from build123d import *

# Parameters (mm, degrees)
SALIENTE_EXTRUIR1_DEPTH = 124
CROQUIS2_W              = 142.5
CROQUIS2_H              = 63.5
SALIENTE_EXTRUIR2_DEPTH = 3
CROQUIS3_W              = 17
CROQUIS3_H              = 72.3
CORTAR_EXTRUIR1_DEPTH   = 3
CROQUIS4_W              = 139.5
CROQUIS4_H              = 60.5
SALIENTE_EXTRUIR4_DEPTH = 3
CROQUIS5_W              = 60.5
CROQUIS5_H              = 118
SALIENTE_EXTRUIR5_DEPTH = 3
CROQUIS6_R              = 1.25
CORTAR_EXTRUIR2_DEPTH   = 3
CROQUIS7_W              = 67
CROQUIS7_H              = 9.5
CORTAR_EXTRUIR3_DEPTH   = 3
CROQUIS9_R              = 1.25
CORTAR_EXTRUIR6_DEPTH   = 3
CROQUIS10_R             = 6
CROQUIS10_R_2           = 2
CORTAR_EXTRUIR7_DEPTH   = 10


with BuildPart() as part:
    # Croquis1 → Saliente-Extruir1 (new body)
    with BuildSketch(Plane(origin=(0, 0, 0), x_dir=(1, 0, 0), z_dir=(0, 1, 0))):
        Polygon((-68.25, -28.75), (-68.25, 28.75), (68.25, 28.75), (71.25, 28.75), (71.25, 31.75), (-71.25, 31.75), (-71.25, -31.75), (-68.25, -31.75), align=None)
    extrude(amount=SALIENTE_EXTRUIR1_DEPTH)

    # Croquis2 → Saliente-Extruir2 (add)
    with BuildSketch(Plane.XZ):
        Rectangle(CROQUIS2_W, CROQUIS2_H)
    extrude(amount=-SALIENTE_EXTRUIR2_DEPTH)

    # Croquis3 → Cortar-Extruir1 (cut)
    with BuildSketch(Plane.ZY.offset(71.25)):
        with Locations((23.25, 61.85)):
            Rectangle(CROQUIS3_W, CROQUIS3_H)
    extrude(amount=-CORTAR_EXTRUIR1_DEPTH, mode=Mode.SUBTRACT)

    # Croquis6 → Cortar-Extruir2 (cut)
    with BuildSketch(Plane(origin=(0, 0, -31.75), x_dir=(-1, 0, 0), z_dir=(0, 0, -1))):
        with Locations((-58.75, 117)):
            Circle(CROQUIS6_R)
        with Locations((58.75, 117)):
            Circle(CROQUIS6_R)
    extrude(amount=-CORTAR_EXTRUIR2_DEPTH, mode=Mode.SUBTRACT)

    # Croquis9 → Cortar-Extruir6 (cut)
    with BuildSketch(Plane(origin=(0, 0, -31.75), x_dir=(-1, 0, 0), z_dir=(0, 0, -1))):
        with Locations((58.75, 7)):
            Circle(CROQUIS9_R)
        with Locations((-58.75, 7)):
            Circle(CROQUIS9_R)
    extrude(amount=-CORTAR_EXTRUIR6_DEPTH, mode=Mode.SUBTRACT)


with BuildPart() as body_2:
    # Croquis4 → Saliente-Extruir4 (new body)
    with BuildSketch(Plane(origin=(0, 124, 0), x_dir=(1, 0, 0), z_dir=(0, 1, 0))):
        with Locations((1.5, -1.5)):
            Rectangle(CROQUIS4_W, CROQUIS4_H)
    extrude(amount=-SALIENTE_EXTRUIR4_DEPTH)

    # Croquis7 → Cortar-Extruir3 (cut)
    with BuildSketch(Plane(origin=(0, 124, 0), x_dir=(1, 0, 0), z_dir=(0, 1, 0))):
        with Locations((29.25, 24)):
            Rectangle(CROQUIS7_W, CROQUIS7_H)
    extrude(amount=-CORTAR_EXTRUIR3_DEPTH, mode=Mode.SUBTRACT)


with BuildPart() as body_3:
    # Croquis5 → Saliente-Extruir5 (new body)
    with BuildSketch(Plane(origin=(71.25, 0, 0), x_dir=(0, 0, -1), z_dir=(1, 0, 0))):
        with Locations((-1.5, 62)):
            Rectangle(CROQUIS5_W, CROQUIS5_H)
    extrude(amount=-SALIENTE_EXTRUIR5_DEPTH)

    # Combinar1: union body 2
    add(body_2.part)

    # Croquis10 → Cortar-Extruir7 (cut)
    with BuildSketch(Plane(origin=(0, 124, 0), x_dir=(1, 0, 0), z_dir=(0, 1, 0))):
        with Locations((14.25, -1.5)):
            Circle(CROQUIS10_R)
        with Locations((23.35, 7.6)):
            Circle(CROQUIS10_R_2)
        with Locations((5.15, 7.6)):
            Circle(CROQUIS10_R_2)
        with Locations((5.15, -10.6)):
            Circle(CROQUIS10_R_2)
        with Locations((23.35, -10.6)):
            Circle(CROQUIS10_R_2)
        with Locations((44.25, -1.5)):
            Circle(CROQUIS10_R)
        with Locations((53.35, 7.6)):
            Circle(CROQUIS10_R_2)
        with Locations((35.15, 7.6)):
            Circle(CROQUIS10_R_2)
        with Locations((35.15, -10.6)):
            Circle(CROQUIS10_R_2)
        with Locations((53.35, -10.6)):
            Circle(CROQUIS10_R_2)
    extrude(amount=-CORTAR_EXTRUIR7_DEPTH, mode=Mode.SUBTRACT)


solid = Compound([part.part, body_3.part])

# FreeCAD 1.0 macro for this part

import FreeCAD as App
import Part
import Sketcher

V = App.Vector
Q = App.Units.Quantity

doc = App.newDocument("Part")
body = doc.addObject("PartDesign::Body", "Body")

# Sketch on XZ plane
sketch1 = body.newObject("Sketcher::SketchObject", "Sketch")
sketch1.AttachmentSupport = (doc.getObject("XZ_Plane"), [""])
sketch1.MapMode = "FlatFace"
sketch1.addGeometry(Part.LineSegment(V(-68.2, -28.8, 0), V(71.2, -28.8, 0)), False)
sketch1.addGeometry(Part.LineSegment(V(71.2, -28.8, 0), V(71.2, -31.8, 0)), False)
sketch1.addGeometry(Part.LineSegment(V(71.2, -31.8, 0), V(-71.2, -31.8, 0)), False)
sketch1.addGeometry(Part.LineSegment(V(-71.2, -31.8, 0), V(-71.2, 31.8, 0)), False)
sketch1.addGeometry(Part.LineSegment(V(-71.2, 31.8, 0), V(-68.2, 31.8, 0)), False)
sketch1.addGeometry(Part.LineSegment(V(-68.2, 31.8, 0), V(-68.2, -28.8, 0)), False)
sketch1.addConstraint(Sketcher.Constraint("Coincident", 0, 2, 1, 1))
sketch1.addConstraint(Sketcher.Constraint("Coincident", 1, 2, 2, 1))
sketch1.addConstraint(Sketcher.Constraint("Coincident", 2, 2, 3, 1))
sketch1.addConstraint(Sketcher.Constraint("Coincident", 3, 2, 4, 1))
sketch1.addConstraint(Sketcher.Constraint("Coincident", 4, 2, 5, 1))
sketch1.addConstraint(Sketcher.Constraint("Coincident", 5, 2, 0, 1))
sketch1.addConstraint(Sketcher.Constraint("Horizontal", 0))
sketch1.addConstraint(Sketcher.Constraint("Vertical", 1))
sketch1.addConstraint(Sketcher.Constraint("Horizontal", 2))
sketch1.addConstraint(Sketcher.Constraint("Vertical", 3))
sketch1.addConstraint(Sketcher.Constraint("Horizontal", 4))
sketch1.addConstraint(Sketcher.Constraint("Vertical", 5))
sketch1.addConstraint(Sketcher.Constraint("Symmetric", 1, 2, 3, 2, -1, 1))
sketch1.addConstraint(Sketcher.Constraint("Equal", 4, 1))
sketch1.addConstraint(Sketcher.Constraint("DistanceX", 4, 1, 4, 2, Q("3 mm")))
sketch1.addConstraint(Sketcher.Constraint("DistanceX", 0, 1, 0, 2, Q("139.5 mm")))
sketch1.addConstraint(Sketcher.Constraint("DistanceY", 3, 1, 3, 2, Q("63.5 mm")))
pad1 = body.newObject("PartDesign::Pad", "Pad")
pad1.Profile = sketch1
pad1.Length = 124
pad1.Reversed = True

# Sketch on XZ plane
sketch2 = body.newObject("Sketcher::SketchObject", "Sketch001")
sketch2.AttachmentSupport = (doc.getObject("XZ_Plane"), [""])
sketch2.MapMode = "FlatFace"
sketch2.addGeometry(Part.LineSegment(V(-71, 32, 0), V(-71, -32, 0)), False)
sketch2.addGeometry(Part.LineSegment(V(-71, -32, 0), V(71, -32, 0)), False)
sketch2.addGeometry(Part.LineSegment(V(71, -32, 0), V(71, 32, 0)), False)
sketch2.addGeometry(Part.LineSegment(V(71, 32, 0), V(-71, 32, 0)), False)
sketch2.addConstraint(Sketcher.Constraint("Coincident", 0, 2, 1, 1))
sketch2.addConstraint(Sketcher.Constraint("Coincident", 1, 2, 2, 1))
sketch2.addConstraint(Sketcher.Constraint("Coincident", 2, 2, 3, 1))
sketch2.addConstraint(Sketcher.Constraint("Coincident", 3, 2, 0, 1))
sketch2.addConstraint(Sketcher.Constraint("Vertical", 0))
sketch2.addConstraint(Sketcher.Constraint("Horizontal", 1))
sketch2.addConstraint(Sketcher.Constraint("Vertical", 2))
sketch2.addConstraint(Sketcher.Constraint("Horizontal", 3))
sketch2.addConstraint(Sketcher.Constraint("Symmetric", 0, 2, 2, 2, -1, 1))
sketch2.addConstraint(Sketcher.Constraint("DistanceX", 1, 1, 1, 2, Q("142.5 mm")))
sketch2.addConstraint(Sketcher.Constraint("DistanceY", 0, 2, 0, 1, Q("63.5 mm")))
pad2 = body.newObject("PartDesign::Pad", "Pad001")
pad2.Profile = sketch2
pad2.Length = 3
pad2.Reversed = True

# Sketch on YZ plane
sketch3 = body.newObject("Sketcher::SketchObject", "Sketch002")
sketch3.AttachmentSupport = (doc.getObject("YZ_Plane"), [""])
sketch3.MapMode = "FlatFace"
sketch3.AttachmentOffset = App.Placement(V(0, 0, -71.25), App.Rotation())
sketch3.addGeometry(Part.LineSegment(V(98, 15, 0), V(26, 15, 0)), False)
sketch3.addGeometry(Part.LineSegment(V(26, 15, 0), V(26, 32, 0)), False)
sketch3.addGeometry(Part.LineSegment(V(26, 32, 0), V(98, 32, 0)), False)
sketch3.addGeometry(Part.LineSegment(V(98, 32, 0), V(98, 15, 0)), False)
sketch3.addConstraint(Sketcher.Constraint("Coincident", 0, 2, 1, 1))
sketch3.addConstraint(Sketcher.Constraint("Coincident", 1, 2, 2, 1))
sketch3.addConstraint(Sketcher.Constraint("Coincident", 2, 2, 3, 1))
sketch3.addConstraint(Sketcher.Constraint("Coincident", 3, 2, 0, 1))
sketch3.addConstraint(Sketcher.Constraint("Horizontal", 0))
sketch3.addConstraint(Sketcher.Constraint("Vertical", 1))
sketch3.addConstraint(Sketcher.Constraint("Horizontal", 2))
sketch3.addConstraint(Sketcher.Constraint("Vertical", 3))
sketch3.addConstraint(Sketcher.Constraint("DistanceY", 1, 1, 1, 2, Q("17 mm")))
sketch3.addConstraint(Sketcher.Constraint("DistanceX", 0, 2, 0, 1, Q("72.3 mm")))
sketch3.addConstraint(Sketcher.Constraint("DistanceX", -1, 1, 2, 2, Q("98 mm")))
sketch3.addConstraint(Sketcher.Constraint("DistanceY", -1, 1, 0, 2, Q("14.75 mm")))
pocket1 = body.newObject("PartDesign::Pocket", "Pocket")
pocket1.Profile = sketch3
pocket1.Length = 3
pocket1.Reversed = True

# Sketch on XY plane
sketch4 = body.newObject("Sketcher::SketchObject", "Sketch003")
sketch4.AttachmentSupport = (doc.getObject("XY_Plane"), [""])
sketch4.MapMode = "FlatFace"
sketch4.AttachmentOffset = App.Placement(V(0, 0, -31.75), App.Rotation())
sketch4.addGeometry(Part.Circle(V(58.8, 117, 0), V(0, 0, 1), 1.2), False)
sketch4.addGeometry(Part.Circle(V(-58.8, 117, 0), V(0, 0, 1), 1.2), False)
sketch4.addConstraint(Sketcher.Constraint("Equal", 0, 1))
sketch4.addConstraint(Sketcher.Constraint("Symmetric", 0, 3, 1, 3, -2))
sketch4.addConstraint(Sketcher.Constraint("Diameter", 0, Q("2.5 mm")))
sketch4.addConstraint(Sketcher.Constraint("DistanceY", -1, 1, 0, 3, Q("117 mm")))
sketch4.addConstraint(Sketcher.Constraint("DistanceX", 1, 3, 0, 3, Q("117.5 mm")))
pocket2 = body.newObject("PartDesign::Pocket", "Pocket001")
pocket2.Profile = sketch4
pocket2.Length = 3
pocket2.Reversed = True

# Sketch on XY plane
sketch5 = body.newObject("Sketcher::SketchObject", "Sketch004")
sketch5.AttachmentSupport = (doc.getObject("XY_Plane"), [""])
sketch5.MapMode = "FlatFace"
sketch5.AttachmentOffset = App.Placement(V(0, 0, -31.75), App.Rotation())
sketch5.addGeometry(Part.Circle(V(-58.8, 7, 0), V(0, 0, 1), 1.2), False)
sketch5.addGeometry(Part.Circle(V(58.8, 7, 0), V(0, 0, 1), 1.2), False)
sketch5.addConstraint(Sketcher.Constraint("Equal", 0, 1))
sketch5.addConstraint(Sketcher.Constraint("Symmetric", 0, 3, 1, 3, -2))
sketch5.addConstraint(Sketcher.Constraint("Diameter", 0, Q("2.5 mm")))
sketch5.addConstraint(Sketcher.Constraint("DistanceY", -1, 1, 0, 3, Q("7 mm")))
sketch5.addConstraint(Sketcher.Constraint("DistanceX", 0, 3, 1, 3, Q("117.5 mm")))
pocket3 = body.newObject("PartDesign::Pocket", "Pocket002")
pocket3.Profile = sketch5
pocket3.Length = 3
pocket3.Reversed = True
body2 = doc.addObject("PartDesign::Body", "Body001")

# Sketch on XZ plane
sketch6 = body2.newObject("Sketcher::SketchObject", "Sketch005")
sketch6.AttachmentSupport = (doc.getObject("XZ_Plane001"), [""])
sketch6.MapMode = "FlatFace"
sketch6.AttachmentOffset = App.Placement(V(0, 0, -124), App.Rotation())
sketch6.addGeometry(Part.LineSegment(V(-68, -29, 0), V(-68, 32, 0)), False)
sketch6.addGeometry(Part.LineSegment(V(-68, 32, 0), V(71, 32, 0)), False)
sketch6.addGeometry(Part.LineSegment(V(71, 32, 0), V(71, -29, 0)), False)
sketch6.addGeometry(Part.LineSegment(V(71, -29, 0), V(-68, -29, 0)), False)
sketch6.addConstraint(Sketcher.Constraint("Coincident", 0, 2, 1, 1))
sketch6.addConstraint(Sketcher.Constraint("Coincident", 1, 2, 2, 1))
sketch6.addConstraint(Sketcher.Constraint("Coincident", 2, 2, 3, 1))
sketch6.addConstraint(Sketcher.Constraint("Coincident", 3, 2, 0, 1))
sketch6.addConstraint(Sketcher.Constraint("Vertical", 0))
sketch6.addConstraint(Sketcher.Constraint("Horizontal", 1))
sketch6.addConstraint(Sketcher.Constraint("Vertical", 2))
sketch6.addConstraint(Sketcher.Constraint("Horizontal", 3))
sketch6.addConstraint(Sketcher.Constraint("DistanceX", 1, 1, 1, 2, Q("139.5 mm")))
sketch6.addConstraint(Sketcher.Constraint("DistanceY", 0, 1, 0, 2, Q("60.5 mm")))
sketch6.addConstraint(Sketcher.Constraint("DistanceX", 0, 2, -1, 1, Q("68.25 mm")))
sketch6.addConstraint(Sketcher.Constraint("DistanceY", -1, 1, 0, 2, Q("31.75 mm")))
pad3 = body2.newObject("PartDesign::Pad", "Pad002")
pad3.Profile = sketch6
pad3.Length = 3

# Sketch on XZ plane
sketch7 = body2.newObject("Sketcher::SketchObject", "Sketch006")
sketch7.AttachmentSupport = (doc.getObject("XZ_Plane001"), [""])
sketch7.MapMode = "FlatFace"
sketch7.AttachmentOffset = App.Placement(V(0, 0, -124), App.Rotation())
sketch7.addGeometry(Part.LineSegment(V(-4, -29, 0), V(-4, -19, 0)), False)
sketch7.addGeometry(Part.LineSegment(V(-4, -19, 0), V(63, -19, 0)), False)
sketch7.addGeometry(Part.LineSegment(V(63, -19, 0), V(63, -29, 0)), False)
sketch7.addGeometry(Part.LineSegment(V(63, -29, 0), V(-4, -29, 0)), False)
sketch7.addConstraint(Sketcher.Constraint("Coincident", 0, 2, 1, 1))
sketch7.addConstraint(Sketcher.Constraint("Coincident", 1, 2, 2, 1))
sketch7.addConstraint(Sketcher.Constraint("Coincident", 2, 2, 3, 1))
sketch7.addConstraint(Sketcher.Constraint("Coincident", 3, 2, 0, 1))
sketch7.addConstraint(Sketcher.Constraint("Vertical", 0))
sketch7.addConstraint(Sketcher.Constraint("Horizontal", 1))
sketch7.addConstraint(Sketcher.Constraint("Vertical", 2))
sketch7.addConstraint(Sketcher.Constraint("Horizontal", 3))
sketch7.addConstraint(Sketcher.Constraint("DistanceX", 1, 1, 1, 2, Q("67 mm")))
sketch7.addConstraint(Sketcher.Constraint("DistanceY", 0, 1, 0, 2, Q("9.5 mm")))
sketch7.addConstraint(Sketcher.Constraint("DistanceX", 0, 2, -1, 1, Q("4.25 mm")))
sketch7.addConstraint(Sketcher.Constraint("DistanceY", 0, 2, -1, 1, Q("19.25 mm")))
pocket4 = body2.newObject("PartDesign::Pocket", "Pocket003")
pocket4.Profile = sketch7
pocket4.Length = 3
pocket4.Reversed = True
body3 = doc.addObject("PartDesign::Body", "Body002")

# Sketch on YZ plane
sketch8 = body3.newObject("Sketcher::SketchObject", "Sketch007")
sketch8.AttachmentSupport = (doc.getObject("YZ_Plane002"), [""])
sketch8.MapMode = "FlatFace"
sketch8.AttachmentOffset = App.Placement(V(0, 0, 71.25), App.Rotation())
sketch8.addGeometry(Part.LineSegment(V(121, 32, 0), V(3, 32, 0)), False)
sketch8.addGeometry(Part.LineSegment(V(3, 32, 0), V(3, -29, 0)), False)
sketch8.addGeometry(Part.LineSegment(V(3, -29, 0), V(121, -29, 0)), False)
sketch8.addGeometry(Part.LineSegment(V(121, -29, 0), V(121, 32, 0)), False)
sketch8.addConstraint(Sketcher.Constraint("Coincident", 0, 2, 1, 1))
sketch8.addConstraint(Sketcher.Constraint("Coincident", 1, 2, 2, 1))
sketch8.addConstraint(Sketcher.Constraint("Coincident", 2, 2, 3, 1))
sketch8.addConstraint(Sketcher.Constraint("Coincident", 3, 2, 0, 1))
sketch8.addConstraint(Sketcher.Constraint("Horizontal", 0))
sketch8.addConstraint(Sketcher.Constraint("Vertical", 1))
sketch8.addConstraint(Sketcher.Constraint("Horizontal", 2))
sketch8.addConstraint(Sketcher.Constraint("Vertical", 3))
sketch8.addConstraint(Sketcher.Constraint("DistanceX", 0, 2, 0, 1, Q("118 mm")))
sketch8.addConstraint(Sketcher.Constraint("DistanceY", 1, 2, 1, 1, Q("60.5 mm")))
sketch8.addConstraint(Sketcher.Constraint("DistanceX", -1, 1, 0, 2, Q("3 mm")))
sketch8.addConstraint(Sketcher.Constraint("DistanceY", -1, 1, 0, 2, Q("31.75 mm")))
pad4 = body3.newObject("PartDesign::Pad", "Pad003")
pad4.Profile = sketch8
pad4.Length = 3
pad4.Reversed = True
doc.recompute()

boolean = body3.newObject("PartDesign::Boolean", "Boolean")
boolean.Type = "Fuse"
boolean.addObjects([body2])

# Sketch on XZ plane
sketch9 = body3.newObject("Sketcher::SketchObject", "Sketch008")
sketch9.AttachmentSupport = (doc.getObject("XZ_Plane002"), [""])
sketch9.MapMode = "FlatFace"
sketch9.AttachmentOffset = App.Placement(V(0, 0, -124), App.Rotation())
sketch9.addGeometry(Part.Circle(V(14.2, 1.5, 0), V(0, 0, 1), 6), False)
sketch9.addGeometry(Part.Circle(V(23.4, -7.6, 0), V(0, 0, 1), 2), False)
sketch9.addGeometry(Part.Circle(V(5.2, -7.6, 0), V(0, 0, 1), 2), False)
sketch9.addGeometry(Part.Circle(V(5.2, 10.6, 0), V(0, 0, 1), 2), False)
sketch9.addGeometry(Part.Circle(V(23.4, 10.6, 0), V(0, 0, 1), 2), False)
sketch9.addGeometry(Part.Circle(V(44.2, 1.5, 0), V(0, 0, 1), 6), False)
sketch9.addGeometry(Part.Circle(V(53.4, -7.6, 0), V(0, 0, 1), 2), False)
sketch9.addGeometry(Part.Circle(V(35.1, -7.6, 0), V(0, 0, 1), 2), False)
sketch9.addGeometry(Part.Circle(V(35.1, 10.6, 0), V(0, 0, 1), 2), False)
sketch9.addGeometry(Part.Circle(V(53.4, 10.6, 0), V(0, 0, 1), 2), False)
sketch9.addConstraint(Sketcher.Constraint("Equal", 1, 2))
sketch9.addConstraint(Sketcher.Constraint("Equal", 2, 3))
sketch9.addConstraint(Sketcher.Constraint("Equal", 3, 4))
sketch9.addConstraint(Sketcher.Constraint("Equal", 0, 5))
sketch9.addConstraint(Sketcher.Constraint("Equal", 4, 6))
sketch9.addConstraint(Sketcher.Constraint("Equal", 6, 7))
sketch9.addConstraint(Sketcher.Constraint("Equal", 7, 8))
sketch9.addConstraint(Sketcher.Constraint("Equal", 8, 9))
sketch9.addConstraint(Sketcher.Constraint("Horizontal", 1, 3, 2, 3))
sketch9.addConstraint(Sketcher.Constraint("Horizontal", 3, 3, 4, 3))
sketch9.addConstraint(Sketcher.Constraint("Horizontal", 0, 3, 5, 3))
sketch9.addConstraint(Sketcher.Constraint("Horizontal", 2, 3, 6, 3))
sketch9.addConstraint(Sketcher.Constraint("Horizontal", 6, 3, 7, 3))
sketch9.addConstraint(Sketcher.Constraint("Horizontal", 4, 3, 8, 3))
sketch9.addConstraint(Sketcher.Constraint("Horizontal", 8, 3, 9, 3))
sketch9.addConstraint(Sketcher.Constraint("Vertical", 2, 3, 3, 3))
sketch9.addConstraint(Sketcher.Constraint("Vertical", 1, 3, 4, 3))
sketch9.addConstraint(Sketcher.Constraint("Vertical", 7, 3, 8, 3))
sketch9.addConstraint(Sketcher.Constraint("Vertical", 6, 3, 9, 3))
sketch9.addConstraint(Sketcher.Constraint("Diameter", 0, Q("12 mm")))
sketch9.addConstraint(Sketcher.Constraint("Diameter", 1, Q("4 mm")))
sketch9.addConstraint(Sketcher.Constraint("DistanceX", 0, 3, 5, 3, Q("30 mm")))
sketch9.addConstraint(Sketcher.Constraint("DistanceX", 1, 3, 6, 3, Q("30 mm")))
sketch9.addConstraint(Sketcher.Constraint("DistanceY", -1, 1, 0, 3, Q("1.5 mm")))
sketch9.addConstraint(Sketcher.Constraint("DistanceY", 1, 3, -1, 1, Q("7.6 mm")))
sketch9.addConstraint(Sketcher.Constraint("DistanceY", -1, 1, 3, 3, Q("10.6 mm")))
sketch9.addConstraint(Sketcher.Constraint("DistanceX", 0, 3, 1, 3, Q("9.1 mm")))
sketch9.addConstraint(Sketcher.Constraint("DistanceX", 2, 3, 0, 3, Q("9.1 mm")))
sketch9.addConstraint(Sketcher.Constraint("DistanceX", 1, 3, 7, 3, Q("11.8 mm")))
sketch9.addConstraint(Sketcher.Constraint("DistanceX", -1, 1, 0, 3, Q("14.25 mm")))
pocket5 = body3.newObject("PartDesign::Pocket", "Pocket004")
pocket5.Profile = sketch9
pocket5.Length = 10
pocket5.Reversed = True

doc.recompute()
